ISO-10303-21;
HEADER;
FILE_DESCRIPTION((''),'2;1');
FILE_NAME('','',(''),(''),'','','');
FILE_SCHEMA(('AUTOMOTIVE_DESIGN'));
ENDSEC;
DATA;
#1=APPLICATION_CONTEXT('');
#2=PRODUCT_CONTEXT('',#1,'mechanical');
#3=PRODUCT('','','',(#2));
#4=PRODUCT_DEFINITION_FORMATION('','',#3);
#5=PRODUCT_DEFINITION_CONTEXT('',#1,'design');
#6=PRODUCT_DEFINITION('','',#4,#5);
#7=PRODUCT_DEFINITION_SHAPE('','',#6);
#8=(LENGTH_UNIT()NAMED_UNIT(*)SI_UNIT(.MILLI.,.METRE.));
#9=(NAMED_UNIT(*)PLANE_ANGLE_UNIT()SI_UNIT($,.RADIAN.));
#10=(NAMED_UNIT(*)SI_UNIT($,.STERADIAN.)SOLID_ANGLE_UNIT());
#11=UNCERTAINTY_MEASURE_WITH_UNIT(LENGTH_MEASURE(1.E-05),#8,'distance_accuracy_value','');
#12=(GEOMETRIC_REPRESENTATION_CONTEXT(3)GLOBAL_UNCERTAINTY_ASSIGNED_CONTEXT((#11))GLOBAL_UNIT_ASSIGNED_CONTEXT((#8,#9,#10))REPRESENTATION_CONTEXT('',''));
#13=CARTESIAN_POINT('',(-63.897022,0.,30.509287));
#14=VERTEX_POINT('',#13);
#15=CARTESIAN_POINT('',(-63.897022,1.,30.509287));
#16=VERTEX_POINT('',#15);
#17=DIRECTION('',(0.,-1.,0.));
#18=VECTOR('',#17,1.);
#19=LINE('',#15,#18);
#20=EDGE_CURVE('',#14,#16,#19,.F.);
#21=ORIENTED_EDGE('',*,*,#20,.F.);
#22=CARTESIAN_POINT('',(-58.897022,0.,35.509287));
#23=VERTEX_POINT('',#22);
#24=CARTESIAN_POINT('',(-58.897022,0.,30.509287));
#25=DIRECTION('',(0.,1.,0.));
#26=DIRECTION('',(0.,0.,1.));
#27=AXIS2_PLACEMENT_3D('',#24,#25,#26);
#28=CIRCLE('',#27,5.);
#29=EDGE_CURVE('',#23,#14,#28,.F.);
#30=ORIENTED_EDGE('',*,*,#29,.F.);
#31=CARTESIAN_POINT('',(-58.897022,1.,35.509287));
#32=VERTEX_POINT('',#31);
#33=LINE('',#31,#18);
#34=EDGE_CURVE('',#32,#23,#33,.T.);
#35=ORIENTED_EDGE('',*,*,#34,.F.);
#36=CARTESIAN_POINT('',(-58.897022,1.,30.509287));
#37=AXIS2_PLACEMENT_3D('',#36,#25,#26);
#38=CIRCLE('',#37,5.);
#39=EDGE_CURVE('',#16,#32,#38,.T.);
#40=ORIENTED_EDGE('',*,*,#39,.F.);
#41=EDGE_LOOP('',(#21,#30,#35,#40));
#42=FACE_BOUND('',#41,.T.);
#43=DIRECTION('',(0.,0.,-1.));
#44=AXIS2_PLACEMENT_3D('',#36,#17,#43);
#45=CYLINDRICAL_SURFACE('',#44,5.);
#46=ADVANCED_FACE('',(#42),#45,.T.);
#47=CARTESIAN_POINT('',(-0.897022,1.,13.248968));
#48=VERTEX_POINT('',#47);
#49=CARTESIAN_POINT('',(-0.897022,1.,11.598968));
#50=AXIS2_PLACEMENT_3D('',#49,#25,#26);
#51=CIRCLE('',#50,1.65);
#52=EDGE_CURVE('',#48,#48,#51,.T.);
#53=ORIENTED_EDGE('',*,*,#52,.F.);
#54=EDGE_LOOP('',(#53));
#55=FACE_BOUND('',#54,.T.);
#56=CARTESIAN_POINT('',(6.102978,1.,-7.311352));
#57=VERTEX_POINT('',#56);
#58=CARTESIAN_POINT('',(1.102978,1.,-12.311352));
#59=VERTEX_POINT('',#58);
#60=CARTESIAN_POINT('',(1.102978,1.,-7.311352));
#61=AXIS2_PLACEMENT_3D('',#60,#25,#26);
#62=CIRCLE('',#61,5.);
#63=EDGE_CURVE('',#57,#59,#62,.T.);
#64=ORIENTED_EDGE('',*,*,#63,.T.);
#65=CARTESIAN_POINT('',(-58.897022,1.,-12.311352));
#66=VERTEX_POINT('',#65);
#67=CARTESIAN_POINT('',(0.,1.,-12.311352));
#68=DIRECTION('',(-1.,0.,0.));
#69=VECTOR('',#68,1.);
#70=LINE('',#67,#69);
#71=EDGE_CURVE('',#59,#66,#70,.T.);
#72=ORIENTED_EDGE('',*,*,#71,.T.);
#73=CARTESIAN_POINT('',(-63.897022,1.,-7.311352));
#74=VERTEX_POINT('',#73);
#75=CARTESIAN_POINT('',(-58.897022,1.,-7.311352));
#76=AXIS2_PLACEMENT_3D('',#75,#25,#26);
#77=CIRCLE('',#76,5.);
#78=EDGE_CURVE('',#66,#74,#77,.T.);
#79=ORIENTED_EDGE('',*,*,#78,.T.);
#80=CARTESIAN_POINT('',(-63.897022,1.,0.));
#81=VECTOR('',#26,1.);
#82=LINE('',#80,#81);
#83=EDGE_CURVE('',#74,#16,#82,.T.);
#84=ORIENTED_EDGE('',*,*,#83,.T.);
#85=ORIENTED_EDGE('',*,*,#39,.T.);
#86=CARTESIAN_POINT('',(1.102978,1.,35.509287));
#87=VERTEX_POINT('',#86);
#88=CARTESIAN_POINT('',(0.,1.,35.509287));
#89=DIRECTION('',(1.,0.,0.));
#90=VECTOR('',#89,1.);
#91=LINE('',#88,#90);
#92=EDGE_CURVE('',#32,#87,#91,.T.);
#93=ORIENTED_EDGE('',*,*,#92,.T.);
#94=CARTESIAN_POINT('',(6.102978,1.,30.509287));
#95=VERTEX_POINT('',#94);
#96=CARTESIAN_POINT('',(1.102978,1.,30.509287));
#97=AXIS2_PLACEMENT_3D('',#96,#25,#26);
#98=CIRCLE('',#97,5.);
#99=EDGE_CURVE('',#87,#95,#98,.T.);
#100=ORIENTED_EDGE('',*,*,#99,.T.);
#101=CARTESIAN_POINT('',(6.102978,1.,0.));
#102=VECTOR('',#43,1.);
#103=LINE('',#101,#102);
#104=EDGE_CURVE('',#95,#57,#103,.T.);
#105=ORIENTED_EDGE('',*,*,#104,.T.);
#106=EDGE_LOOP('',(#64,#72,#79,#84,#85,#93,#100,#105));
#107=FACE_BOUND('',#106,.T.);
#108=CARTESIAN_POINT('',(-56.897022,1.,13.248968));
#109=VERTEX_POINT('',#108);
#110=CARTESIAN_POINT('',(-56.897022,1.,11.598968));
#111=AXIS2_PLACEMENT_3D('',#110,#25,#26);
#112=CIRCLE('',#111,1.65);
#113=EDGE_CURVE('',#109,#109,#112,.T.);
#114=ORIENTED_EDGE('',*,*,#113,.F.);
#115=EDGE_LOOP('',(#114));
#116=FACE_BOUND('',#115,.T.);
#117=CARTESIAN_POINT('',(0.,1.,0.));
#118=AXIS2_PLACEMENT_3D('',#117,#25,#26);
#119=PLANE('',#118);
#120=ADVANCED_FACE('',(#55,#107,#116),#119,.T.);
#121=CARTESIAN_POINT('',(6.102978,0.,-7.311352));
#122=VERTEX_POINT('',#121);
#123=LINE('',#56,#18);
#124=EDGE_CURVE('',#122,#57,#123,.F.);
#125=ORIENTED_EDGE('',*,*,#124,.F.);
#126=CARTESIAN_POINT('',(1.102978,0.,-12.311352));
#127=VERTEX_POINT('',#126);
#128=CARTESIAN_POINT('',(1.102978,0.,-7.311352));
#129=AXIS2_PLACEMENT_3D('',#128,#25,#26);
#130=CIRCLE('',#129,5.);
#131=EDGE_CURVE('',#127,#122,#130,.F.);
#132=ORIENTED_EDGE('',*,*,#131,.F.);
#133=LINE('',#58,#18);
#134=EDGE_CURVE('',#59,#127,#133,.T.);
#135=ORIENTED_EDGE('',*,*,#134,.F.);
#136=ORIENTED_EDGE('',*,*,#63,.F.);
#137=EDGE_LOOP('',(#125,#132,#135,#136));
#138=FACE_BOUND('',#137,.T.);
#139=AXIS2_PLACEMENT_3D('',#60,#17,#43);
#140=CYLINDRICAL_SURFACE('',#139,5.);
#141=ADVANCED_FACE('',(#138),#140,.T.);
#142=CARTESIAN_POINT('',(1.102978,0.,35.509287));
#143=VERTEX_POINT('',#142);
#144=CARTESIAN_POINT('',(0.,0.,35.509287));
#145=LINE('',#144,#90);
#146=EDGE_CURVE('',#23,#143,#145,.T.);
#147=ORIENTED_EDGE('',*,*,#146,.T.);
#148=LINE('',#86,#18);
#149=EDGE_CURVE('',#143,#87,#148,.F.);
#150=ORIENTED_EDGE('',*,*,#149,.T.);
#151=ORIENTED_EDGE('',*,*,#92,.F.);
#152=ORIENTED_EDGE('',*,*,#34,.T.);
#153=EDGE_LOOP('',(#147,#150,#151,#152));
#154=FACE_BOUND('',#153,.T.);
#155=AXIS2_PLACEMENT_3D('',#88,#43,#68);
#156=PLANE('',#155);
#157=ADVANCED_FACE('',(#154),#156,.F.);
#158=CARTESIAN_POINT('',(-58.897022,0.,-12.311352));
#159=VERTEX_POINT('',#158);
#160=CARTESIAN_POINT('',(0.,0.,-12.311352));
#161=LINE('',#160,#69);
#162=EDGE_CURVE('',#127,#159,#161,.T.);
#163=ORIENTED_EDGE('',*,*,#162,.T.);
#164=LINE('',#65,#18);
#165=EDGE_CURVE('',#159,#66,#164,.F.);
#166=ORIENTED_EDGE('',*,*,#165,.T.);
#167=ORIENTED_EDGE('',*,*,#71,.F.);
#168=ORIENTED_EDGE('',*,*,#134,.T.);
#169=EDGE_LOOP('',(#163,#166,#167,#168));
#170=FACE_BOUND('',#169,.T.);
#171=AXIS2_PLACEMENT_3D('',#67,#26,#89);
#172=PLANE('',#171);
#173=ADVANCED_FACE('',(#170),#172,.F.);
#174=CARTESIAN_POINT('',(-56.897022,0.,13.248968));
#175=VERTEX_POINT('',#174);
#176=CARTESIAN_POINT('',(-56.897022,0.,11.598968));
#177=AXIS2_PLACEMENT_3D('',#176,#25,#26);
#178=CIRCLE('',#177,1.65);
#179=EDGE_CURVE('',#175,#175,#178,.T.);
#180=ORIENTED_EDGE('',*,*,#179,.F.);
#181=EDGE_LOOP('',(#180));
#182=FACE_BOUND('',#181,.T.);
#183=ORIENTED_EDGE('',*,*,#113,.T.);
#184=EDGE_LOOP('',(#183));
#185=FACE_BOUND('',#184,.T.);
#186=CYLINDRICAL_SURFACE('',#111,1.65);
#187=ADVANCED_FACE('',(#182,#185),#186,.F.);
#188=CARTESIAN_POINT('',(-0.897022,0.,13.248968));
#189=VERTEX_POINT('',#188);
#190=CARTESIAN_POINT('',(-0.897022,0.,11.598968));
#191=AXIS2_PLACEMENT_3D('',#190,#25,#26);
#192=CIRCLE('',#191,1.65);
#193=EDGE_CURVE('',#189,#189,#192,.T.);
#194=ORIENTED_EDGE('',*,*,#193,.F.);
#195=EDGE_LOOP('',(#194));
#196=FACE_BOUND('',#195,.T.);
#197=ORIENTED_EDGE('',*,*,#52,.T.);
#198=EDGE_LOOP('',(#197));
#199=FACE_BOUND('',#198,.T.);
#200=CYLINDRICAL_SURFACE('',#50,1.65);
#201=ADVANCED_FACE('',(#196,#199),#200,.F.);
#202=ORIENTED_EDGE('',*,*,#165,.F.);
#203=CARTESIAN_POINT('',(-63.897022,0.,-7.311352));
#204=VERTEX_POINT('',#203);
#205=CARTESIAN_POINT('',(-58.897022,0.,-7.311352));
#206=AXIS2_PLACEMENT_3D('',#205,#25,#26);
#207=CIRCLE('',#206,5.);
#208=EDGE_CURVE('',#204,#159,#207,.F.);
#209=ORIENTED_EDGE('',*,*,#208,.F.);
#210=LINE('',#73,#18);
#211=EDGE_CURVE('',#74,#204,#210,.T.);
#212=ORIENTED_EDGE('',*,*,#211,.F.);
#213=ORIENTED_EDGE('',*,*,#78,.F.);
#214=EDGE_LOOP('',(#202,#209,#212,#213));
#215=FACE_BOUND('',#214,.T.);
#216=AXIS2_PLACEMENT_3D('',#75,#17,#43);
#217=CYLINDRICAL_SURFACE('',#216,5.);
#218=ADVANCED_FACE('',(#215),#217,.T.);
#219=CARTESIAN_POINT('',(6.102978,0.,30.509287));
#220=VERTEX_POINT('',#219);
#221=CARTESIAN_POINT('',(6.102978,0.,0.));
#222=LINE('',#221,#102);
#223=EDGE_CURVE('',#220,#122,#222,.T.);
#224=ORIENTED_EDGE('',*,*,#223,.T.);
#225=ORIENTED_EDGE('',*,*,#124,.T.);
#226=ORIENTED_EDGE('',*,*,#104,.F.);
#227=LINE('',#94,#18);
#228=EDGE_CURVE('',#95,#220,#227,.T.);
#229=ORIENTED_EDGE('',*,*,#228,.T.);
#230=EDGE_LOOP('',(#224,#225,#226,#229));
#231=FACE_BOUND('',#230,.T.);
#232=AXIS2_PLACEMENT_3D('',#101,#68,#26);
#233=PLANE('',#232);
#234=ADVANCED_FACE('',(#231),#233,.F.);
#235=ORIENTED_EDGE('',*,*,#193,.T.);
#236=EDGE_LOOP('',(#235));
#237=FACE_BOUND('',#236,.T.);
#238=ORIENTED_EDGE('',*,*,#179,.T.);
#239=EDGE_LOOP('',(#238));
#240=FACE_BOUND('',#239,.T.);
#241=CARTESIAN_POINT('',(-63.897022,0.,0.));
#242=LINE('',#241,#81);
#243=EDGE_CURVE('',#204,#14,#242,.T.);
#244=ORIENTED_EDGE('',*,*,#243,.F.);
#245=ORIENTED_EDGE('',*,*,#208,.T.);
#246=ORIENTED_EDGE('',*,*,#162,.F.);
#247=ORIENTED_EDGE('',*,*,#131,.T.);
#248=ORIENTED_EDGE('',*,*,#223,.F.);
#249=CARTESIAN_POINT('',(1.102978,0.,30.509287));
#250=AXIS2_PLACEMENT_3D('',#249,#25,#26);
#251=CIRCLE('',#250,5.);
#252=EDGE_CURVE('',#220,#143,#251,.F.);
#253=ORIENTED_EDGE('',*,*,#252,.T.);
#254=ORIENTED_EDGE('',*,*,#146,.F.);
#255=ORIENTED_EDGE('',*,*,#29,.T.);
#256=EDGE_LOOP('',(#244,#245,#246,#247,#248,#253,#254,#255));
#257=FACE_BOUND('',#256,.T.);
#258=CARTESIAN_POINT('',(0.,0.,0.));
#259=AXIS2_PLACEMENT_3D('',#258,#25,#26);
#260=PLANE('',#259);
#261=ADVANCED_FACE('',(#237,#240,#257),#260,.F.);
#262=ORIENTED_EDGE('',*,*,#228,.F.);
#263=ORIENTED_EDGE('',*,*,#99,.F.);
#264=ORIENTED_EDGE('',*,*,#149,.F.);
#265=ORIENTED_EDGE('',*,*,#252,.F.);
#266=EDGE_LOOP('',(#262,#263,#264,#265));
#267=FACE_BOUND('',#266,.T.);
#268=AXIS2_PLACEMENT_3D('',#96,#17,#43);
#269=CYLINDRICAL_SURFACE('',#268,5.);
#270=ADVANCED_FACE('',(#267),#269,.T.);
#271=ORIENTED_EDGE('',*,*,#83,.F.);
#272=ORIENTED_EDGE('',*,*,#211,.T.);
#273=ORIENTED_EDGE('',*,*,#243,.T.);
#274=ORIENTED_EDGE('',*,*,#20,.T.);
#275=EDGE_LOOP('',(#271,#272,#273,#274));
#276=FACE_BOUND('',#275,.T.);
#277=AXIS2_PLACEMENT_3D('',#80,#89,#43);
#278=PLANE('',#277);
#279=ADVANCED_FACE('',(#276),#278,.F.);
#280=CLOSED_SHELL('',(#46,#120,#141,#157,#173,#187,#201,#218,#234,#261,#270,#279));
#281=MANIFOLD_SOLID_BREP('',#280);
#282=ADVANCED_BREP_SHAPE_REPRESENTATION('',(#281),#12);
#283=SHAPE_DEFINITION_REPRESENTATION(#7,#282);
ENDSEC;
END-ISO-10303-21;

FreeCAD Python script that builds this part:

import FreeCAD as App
import Part
import Sketcher
from FreeCAD import Vector
Q = App.Units.Quantity


def edges_at(feature, points):
    """Names of the edges that pass closest to the given points."""
    edges = feature.Shape.Edges
    near = lambda p: min(range(len(edges)), key=lambda i: edges[i].distToShape(Part.Vertex(*p))[0])
    return sorted({f"Edge{near(p) + 1}" for p in points})

doc = App.newDocument("Part")
body = doc.addObject("PartDesign::Body", "Body")

# Sketch on XZ plane
sketch1 = doc.addObject("Sketcher::SketchObject", "Sketch")
body.addObject(sketch1)
sketch1.AttachmentSupport = (doc.XZ_Plane, [""])
sketch1.MapMode = "FlatFace"
sketch1.addGeometry(Part.LineSegment(Vector(-64, -12, 0), Vector(-64, 36, 0)), False)
sketch1.addGeometry(Part.LineSegment(Vector(-64, 36, 0), Vector(6, 36, 0)), False)
sketch1.addGeometry(Part.LineSegment(Vector(6, 36, 0), Vector(6, -12, 0)), False)
sketch1.addGeometry(Part.LineSegment(Vector(6, -12, 0), Vector(-64, -12, 0)), False)
sketch1.addConstraint(Sketcher.Constraint("Coincident", 0, 2, 1, 1))
sketch1.addConstraint(Sketcher.Constraint("Coincident", 1, 2, 2, 1))
sketch1.addConstraint(Sketcher.Constraint("Coincident", 2, 2, 3, 1))
sketch1.addConstraint(Sketcher.Constraint("Coincident", 3, 2, 0, 1))
sketch1.addConstraint(Sketcher.Constraint("Vertical", 0))
sketch1.addConstraint(Sketcher.Constraint("Horizontal", 1))
sketch1.addConstraint(Sketcher.Constraint("Vertical", 2))
sketch1.addConstraint(Sketcher.Constraint("Horizontal", 3))
sketch1.addConstraint(Sketcher.Constraint("DistanceX", 1, 1, 1, 2, Q("70 mm")))
sketch1.addConstraint(Sketcher.Constraint("DistanceY", 0, 1, 0, 2, Q("47.820639 mm")))
sketch1.addConstraint(Sketcher.Constraint("DistanceY", 2, 2, -1, 1, Q("12.311352 mm")))
sketch1.addConstraint(Sketcher.Constraint("DistanceX", 0, 2, -1, 1, Q("63.897022 mm")))
pad1 = doc.addObject("PartDesign::Pad", "Pad")
body.addObject(pad1)
pad1.Profile = sketch1
pad1.Length = 1
pad1.Reversed = True
doc.recompute()

fillet = doc.addObject("PartDesign::Fillet", "Fillet")
body.addObject(fillet)
fillet.Base = (pad1, edges_at(pad1, [
    (6.103, 0.5, 35.509),
    (-63.897, 0.5, 35.509),
    (-63.897, 0.5, -12.311),
    (6.103, 0.5, -12.311),
]))
fillet.Radius = 5

# Sketch on XZ plane
sketch2 = doc.addObject("Sketcher::SketchObject", "Sketch001")
body.addObject(sketch2)
sketch2.AttachmentSupport = (doc.XZ_Plane, [""])
sketch2.MapMode = "FlatFace"
sketch2.AttachmentOffset = App.Placement(Vector(0, 0, -1), App.Rotation())
sketch2.addGeometry(Part.Circle(Vector(-56.9, 11.6, 0), Vector(0, 0, 1), 1.6), False)
sketch2.addGeometry(Part.Circle(Vector(-0.9, 11.6, 0), Vector(0, 0, 1), 1.6), False)
sketch2.addConstraint(Sketcher.Constraint("Equal", 0, 1))
sketch2.addConstraint(Sketcher.Constraint("Horizontal", 0, 3, 1, 3))
sketch2.addConstraint(Sketcher.Constraint("Diameter", 0, Q("3.3 mm")))
sketch2.addConstraint(Sketcher.Constraint("DistanceX", 0, 3, 1, 3, Q("56 mm")))
sketch2.addConstraint(Sketcher.Constraint("DistanceX", 0, 3, -1, 1, Q("56.897022 mm")))
sketch2.addConstraint(Sketcher.Constraint("DistanceY", -1, 1, 0, 3, Q("11.598968 mm")))
doc.recompute()
hole = doc.addObject("PartDesign::Hole", "Hole")
body.addObject(hole)
hole.Profile = sketch2
hole.ThreadType = "None"
hole.Diameter = 3.3
hole.DepthType = "Dimension"
hole.Depth = 11.5
hole.DrillPoint = "Angled"
hole.DrillPointAngle = 118
hole.Reversed = True

doc.recompute()
